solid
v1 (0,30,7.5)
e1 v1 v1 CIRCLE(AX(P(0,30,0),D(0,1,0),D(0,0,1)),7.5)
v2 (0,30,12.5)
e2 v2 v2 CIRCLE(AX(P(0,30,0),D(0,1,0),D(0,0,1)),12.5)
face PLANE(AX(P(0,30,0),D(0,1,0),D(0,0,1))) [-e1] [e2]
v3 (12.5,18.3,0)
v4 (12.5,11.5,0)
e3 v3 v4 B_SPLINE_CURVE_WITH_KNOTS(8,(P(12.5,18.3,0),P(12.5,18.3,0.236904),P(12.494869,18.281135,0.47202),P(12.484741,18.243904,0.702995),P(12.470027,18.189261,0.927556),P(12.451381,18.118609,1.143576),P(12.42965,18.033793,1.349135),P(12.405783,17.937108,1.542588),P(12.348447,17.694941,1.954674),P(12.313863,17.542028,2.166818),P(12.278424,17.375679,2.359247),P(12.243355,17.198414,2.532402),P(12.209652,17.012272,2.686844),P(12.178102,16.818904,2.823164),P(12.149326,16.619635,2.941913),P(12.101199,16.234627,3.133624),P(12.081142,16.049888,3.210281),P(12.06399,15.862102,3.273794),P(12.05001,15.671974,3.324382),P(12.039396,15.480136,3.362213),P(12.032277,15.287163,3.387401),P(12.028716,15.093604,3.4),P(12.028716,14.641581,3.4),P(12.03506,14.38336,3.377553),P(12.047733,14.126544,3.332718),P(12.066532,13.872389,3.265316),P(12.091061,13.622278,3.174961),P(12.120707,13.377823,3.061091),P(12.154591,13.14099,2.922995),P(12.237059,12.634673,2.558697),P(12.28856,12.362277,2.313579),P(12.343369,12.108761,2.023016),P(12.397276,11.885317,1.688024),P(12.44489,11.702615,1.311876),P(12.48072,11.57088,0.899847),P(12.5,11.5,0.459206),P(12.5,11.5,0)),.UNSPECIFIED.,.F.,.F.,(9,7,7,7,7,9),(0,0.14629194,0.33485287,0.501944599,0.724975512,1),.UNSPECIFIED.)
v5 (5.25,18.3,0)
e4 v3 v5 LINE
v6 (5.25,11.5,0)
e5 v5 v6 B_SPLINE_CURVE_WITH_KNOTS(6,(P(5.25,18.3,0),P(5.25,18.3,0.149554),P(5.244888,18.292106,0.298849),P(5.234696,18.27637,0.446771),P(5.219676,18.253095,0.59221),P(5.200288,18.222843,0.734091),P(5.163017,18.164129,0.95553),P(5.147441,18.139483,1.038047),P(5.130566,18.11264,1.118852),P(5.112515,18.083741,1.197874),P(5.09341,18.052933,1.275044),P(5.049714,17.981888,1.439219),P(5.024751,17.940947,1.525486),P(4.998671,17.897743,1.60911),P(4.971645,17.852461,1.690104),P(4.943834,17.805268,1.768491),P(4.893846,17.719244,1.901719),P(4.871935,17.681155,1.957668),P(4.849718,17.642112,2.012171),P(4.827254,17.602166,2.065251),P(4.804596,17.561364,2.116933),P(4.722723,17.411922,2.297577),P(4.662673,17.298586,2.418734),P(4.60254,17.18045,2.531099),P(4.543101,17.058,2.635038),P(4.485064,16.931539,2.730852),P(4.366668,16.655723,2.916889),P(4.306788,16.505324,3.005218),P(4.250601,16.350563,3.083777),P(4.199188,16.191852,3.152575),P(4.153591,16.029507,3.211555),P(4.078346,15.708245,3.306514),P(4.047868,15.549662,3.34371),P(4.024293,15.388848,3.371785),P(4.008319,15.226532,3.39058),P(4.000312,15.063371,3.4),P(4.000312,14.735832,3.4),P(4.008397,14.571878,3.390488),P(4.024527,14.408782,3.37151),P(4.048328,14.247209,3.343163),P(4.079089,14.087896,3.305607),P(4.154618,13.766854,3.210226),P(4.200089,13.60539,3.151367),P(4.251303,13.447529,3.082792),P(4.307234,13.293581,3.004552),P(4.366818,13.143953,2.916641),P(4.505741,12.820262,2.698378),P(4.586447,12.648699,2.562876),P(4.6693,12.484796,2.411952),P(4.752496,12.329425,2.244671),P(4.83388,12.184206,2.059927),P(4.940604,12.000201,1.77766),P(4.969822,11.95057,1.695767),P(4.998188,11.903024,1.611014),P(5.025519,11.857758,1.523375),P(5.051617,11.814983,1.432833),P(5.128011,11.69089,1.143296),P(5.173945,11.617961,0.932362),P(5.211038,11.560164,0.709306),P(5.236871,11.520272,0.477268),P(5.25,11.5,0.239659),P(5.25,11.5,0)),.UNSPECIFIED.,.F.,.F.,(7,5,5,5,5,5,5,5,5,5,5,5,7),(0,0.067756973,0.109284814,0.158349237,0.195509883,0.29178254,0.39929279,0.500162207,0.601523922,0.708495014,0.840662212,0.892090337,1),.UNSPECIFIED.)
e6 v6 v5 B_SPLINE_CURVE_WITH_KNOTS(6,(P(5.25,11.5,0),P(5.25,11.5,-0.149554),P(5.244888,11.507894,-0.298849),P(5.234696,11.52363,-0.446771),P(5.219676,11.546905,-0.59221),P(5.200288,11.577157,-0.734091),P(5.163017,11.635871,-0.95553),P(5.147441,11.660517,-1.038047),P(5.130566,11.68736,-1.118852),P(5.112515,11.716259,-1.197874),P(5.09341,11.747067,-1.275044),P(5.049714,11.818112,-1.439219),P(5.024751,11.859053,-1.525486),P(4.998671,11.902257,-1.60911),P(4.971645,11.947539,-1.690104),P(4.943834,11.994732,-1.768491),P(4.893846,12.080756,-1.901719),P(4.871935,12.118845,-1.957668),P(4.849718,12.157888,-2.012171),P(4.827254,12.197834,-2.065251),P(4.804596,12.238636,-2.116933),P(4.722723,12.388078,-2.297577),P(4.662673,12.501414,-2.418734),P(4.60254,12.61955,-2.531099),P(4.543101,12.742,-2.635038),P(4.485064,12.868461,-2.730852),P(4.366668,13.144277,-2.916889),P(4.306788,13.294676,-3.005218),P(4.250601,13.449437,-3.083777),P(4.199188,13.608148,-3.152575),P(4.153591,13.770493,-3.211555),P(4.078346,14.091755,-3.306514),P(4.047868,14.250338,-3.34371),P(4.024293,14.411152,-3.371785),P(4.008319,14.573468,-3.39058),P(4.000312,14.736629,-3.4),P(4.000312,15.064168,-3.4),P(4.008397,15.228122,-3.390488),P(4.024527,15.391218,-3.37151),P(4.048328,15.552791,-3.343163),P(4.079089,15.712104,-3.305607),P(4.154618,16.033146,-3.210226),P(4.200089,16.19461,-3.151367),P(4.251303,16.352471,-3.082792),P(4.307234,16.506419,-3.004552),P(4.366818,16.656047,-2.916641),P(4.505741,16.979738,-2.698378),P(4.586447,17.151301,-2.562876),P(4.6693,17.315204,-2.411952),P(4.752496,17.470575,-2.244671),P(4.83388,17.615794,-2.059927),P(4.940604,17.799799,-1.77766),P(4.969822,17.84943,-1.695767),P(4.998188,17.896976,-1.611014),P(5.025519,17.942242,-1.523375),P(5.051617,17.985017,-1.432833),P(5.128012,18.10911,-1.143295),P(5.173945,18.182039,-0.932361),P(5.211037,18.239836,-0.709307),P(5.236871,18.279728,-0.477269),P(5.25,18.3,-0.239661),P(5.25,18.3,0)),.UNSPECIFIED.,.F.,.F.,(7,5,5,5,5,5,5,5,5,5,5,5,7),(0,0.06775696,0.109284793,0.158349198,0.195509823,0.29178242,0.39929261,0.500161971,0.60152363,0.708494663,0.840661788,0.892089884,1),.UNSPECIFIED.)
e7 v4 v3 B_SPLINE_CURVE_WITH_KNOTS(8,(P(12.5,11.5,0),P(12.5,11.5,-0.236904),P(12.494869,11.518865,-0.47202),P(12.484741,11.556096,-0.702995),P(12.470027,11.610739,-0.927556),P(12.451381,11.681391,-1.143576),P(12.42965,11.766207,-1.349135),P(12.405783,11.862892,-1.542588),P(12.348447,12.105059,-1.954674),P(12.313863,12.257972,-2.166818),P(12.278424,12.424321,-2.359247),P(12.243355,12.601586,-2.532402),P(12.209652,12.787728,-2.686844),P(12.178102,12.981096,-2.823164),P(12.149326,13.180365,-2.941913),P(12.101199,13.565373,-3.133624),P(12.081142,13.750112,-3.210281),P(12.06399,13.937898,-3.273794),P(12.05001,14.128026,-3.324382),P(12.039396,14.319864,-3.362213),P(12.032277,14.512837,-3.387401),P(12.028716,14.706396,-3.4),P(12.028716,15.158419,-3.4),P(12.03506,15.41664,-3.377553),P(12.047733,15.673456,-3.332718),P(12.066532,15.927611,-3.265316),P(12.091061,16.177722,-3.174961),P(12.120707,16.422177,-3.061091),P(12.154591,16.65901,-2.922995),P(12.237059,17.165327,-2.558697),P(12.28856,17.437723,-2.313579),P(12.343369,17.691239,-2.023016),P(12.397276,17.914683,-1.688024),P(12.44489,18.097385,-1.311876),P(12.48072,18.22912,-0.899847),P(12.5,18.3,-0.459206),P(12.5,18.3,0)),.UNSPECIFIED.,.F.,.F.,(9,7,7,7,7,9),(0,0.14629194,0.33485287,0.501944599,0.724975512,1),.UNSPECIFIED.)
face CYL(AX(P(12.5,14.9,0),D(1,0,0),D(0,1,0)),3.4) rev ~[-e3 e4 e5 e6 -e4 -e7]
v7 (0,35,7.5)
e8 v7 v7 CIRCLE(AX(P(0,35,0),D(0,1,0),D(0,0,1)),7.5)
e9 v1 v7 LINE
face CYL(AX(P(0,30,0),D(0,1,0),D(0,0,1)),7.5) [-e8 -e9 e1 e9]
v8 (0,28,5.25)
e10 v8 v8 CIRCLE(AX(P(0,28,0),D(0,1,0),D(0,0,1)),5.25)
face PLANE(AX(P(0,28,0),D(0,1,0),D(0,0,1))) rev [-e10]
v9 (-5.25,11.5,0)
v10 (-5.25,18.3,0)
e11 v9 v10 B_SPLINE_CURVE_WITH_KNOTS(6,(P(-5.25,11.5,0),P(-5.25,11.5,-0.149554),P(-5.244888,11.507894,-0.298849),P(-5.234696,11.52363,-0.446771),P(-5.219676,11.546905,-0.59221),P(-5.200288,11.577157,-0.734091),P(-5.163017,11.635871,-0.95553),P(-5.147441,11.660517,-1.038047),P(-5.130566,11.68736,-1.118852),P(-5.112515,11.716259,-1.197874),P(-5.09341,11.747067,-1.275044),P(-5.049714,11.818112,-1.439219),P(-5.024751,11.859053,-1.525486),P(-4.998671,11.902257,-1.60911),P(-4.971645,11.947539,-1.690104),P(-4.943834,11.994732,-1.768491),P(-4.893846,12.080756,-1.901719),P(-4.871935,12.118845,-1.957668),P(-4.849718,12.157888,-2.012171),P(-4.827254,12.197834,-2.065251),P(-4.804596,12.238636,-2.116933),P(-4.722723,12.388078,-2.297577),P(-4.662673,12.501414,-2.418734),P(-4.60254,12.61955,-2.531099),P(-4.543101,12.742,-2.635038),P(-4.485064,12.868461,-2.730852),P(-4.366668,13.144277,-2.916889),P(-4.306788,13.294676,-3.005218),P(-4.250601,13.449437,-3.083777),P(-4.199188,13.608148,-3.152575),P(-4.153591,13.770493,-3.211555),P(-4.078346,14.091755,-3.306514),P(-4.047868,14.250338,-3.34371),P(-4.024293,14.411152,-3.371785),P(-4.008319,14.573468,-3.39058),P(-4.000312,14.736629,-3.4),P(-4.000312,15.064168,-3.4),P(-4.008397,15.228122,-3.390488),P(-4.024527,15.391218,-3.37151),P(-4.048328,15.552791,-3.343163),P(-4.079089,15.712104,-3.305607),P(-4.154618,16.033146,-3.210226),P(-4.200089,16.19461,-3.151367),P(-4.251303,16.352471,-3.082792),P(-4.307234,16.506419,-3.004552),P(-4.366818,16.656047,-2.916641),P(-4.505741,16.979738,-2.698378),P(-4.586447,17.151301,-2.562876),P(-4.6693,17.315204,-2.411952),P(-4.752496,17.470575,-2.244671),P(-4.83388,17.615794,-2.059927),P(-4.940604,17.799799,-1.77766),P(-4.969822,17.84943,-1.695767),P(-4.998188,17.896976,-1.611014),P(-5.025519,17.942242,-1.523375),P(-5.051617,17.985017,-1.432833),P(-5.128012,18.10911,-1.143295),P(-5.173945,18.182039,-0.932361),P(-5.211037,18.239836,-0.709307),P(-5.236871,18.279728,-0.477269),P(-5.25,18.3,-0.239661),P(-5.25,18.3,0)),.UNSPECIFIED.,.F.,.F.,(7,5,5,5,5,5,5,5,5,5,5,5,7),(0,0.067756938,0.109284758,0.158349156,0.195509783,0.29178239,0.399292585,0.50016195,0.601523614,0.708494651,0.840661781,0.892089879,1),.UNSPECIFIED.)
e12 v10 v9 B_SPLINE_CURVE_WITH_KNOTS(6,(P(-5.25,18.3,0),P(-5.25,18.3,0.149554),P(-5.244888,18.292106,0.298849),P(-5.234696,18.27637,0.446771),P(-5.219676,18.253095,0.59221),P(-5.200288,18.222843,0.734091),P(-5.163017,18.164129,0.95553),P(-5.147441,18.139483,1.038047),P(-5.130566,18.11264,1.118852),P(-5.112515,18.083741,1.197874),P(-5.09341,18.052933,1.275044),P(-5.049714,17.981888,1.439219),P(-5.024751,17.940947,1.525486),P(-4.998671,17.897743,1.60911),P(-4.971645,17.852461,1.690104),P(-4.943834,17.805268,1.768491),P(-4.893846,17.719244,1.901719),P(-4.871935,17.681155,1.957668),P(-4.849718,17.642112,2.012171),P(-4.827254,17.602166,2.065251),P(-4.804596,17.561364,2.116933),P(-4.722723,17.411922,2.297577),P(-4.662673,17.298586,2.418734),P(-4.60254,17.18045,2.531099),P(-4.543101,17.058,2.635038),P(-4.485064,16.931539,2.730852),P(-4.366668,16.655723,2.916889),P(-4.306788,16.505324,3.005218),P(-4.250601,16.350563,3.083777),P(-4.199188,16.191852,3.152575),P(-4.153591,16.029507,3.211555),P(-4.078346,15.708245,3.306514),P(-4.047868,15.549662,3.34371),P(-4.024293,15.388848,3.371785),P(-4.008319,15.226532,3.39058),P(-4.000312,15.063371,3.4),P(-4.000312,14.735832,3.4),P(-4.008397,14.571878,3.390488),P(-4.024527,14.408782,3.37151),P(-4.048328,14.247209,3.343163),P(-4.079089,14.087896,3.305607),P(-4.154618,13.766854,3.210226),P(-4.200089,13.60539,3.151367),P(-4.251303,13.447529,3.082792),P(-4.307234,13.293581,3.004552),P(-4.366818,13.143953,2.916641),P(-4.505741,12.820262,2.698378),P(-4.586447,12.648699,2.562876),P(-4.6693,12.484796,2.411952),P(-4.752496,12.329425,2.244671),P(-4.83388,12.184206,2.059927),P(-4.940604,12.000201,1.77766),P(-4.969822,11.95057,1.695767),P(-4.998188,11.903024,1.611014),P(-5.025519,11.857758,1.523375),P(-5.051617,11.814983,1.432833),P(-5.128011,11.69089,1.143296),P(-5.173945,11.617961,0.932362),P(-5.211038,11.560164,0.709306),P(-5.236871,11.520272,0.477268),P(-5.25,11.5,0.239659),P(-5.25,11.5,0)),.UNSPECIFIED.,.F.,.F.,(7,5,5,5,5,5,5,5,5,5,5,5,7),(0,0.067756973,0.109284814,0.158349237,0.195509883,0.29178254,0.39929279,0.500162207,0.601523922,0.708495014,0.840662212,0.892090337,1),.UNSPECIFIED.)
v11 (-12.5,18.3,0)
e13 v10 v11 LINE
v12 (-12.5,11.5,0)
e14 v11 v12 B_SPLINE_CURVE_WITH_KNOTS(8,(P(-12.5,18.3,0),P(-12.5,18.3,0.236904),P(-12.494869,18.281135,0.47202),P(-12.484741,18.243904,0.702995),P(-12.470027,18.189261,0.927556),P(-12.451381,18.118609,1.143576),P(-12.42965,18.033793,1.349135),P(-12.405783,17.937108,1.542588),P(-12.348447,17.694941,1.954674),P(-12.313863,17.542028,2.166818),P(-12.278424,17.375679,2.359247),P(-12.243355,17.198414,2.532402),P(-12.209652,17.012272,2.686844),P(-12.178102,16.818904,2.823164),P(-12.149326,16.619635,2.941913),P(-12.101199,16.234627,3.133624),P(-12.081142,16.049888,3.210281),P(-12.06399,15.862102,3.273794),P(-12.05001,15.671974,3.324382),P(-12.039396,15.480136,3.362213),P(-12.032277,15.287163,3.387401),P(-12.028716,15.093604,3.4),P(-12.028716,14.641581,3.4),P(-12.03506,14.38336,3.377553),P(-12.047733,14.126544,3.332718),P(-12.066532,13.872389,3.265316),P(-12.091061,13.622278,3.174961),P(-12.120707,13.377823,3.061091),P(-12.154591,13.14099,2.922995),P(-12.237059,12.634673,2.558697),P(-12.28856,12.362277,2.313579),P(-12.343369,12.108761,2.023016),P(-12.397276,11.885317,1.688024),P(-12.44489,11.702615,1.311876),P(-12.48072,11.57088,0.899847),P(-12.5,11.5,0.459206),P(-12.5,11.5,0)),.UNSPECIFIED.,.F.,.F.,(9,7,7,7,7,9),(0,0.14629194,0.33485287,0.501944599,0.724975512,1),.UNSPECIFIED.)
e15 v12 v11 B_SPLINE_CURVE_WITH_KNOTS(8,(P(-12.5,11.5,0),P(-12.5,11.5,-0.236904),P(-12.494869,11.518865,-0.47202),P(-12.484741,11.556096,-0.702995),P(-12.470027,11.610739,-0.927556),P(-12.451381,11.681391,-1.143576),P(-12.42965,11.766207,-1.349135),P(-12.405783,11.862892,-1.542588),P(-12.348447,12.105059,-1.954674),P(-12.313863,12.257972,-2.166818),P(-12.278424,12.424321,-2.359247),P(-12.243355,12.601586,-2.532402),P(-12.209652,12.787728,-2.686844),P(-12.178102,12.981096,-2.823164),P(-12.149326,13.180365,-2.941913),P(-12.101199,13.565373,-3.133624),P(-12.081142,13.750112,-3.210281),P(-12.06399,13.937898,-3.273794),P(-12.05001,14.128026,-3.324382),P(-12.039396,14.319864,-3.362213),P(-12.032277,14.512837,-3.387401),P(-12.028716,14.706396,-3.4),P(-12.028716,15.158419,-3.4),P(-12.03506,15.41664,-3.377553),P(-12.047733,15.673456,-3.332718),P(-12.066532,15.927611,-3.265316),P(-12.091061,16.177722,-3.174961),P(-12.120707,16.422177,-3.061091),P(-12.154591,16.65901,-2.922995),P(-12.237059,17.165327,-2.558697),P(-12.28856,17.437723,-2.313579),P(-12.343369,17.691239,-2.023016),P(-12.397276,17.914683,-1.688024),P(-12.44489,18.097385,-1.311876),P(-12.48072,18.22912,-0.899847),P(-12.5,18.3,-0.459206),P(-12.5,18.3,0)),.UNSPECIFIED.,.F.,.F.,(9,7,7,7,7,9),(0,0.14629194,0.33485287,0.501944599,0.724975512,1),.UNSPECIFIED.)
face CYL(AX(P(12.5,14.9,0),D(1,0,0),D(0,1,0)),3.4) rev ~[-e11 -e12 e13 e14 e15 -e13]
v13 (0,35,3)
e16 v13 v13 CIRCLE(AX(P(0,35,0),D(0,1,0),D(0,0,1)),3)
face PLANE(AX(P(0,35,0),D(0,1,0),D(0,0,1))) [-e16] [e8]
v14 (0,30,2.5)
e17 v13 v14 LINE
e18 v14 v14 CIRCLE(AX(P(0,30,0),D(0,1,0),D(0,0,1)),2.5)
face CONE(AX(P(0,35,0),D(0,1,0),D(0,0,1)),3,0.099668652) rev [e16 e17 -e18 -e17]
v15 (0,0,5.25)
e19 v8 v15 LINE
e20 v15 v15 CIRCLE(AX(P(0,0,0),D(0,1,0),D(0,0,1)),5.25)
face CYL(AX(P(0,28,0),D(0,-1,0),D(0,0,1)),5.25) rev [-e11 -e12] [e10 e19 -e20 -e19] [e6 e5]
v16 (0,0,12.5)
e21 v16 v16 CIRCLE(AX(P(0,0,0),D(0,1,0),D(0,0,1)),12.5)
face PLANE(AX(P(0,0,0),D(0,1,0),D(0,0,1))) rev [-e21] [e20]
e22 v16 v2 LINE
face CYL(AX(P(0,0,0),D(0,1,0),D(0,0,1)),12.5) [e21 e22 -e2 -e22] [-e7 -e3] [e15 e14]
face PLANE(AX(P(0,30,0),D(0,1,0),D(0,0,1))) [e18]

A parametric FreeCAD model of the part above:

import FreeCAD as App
import Part
import Sketcher
Q = App.Units.Quantity


def add_polygon(sketch, points):
    """Adds a closed chain of lines whose ends are joined by coincident constraints."""
    first, n = sketch.GeometryCount, len(points)
    for a, b in zip(points, points[1:] + points[:1]):
        sketch.addGeometry(Part.LineSegment(App.Vector(*a, 0), App.Vector(*b, 0)), False)
    for i in range(n):
        sketch.addConstraint(Sketcher.Constraint("Coincident", first + i, 2, first + (i + 1) % n, 1))

doc = App.newDocument("Part")
body = doc.addObject("PartDesign::Body", "Body")

# Sketch on YZ plane
sketch1 = doc.addObject("Sketcher::SketchObject", "Sketch")
body.addObject(sketch1)
sketch1.AttachmentSupport = (doc.YZ_Plane, [""])
sketch1.MapMode = "FlatFace"
add_polygon(sketch1, [(28, 5.2), (28, 0), (30, 0), (30, 2.5), (35, 3), (35, 7.5), (30, 7.5), (30, 12.5), (0, 12.5), (0, 5.2)])  # lines 0-9
sketch1.addConstraint(Sketcher.Constraint("Vertical", 0))
sketch1.addConstraint(Sketcher.Constraint("Horizontal", 1))
sketch1.addConstraint(Sketcher.Constraint("Vertical", 2))
sketch1.addConstraint(Sketcher.Constraint("Vertical", 4))
sketch1.addConstraint(Sketcher.Constraint("Horizontal", 5))
sketch1.addConstraint(Sketcher.Constraint("Vertical", 6))
sketch1.addConstraint(Sketcher.Constraint("Horizontal", 7))
sketch1.addConstraint(Sketcher.Constraint("Vertical", 8))
sketch1.addConstraint(Sketcher.Constraint("Horizontal", 9))
sketch1.addConstraint(Sketcher.Constraint("PointOnObject", 0, 2, -1))
sketch1.addConstraint(Sketcher.Constraint("PointOnObject", 7, 2, -2))
sketch1.addConstraint(Sketcher.Constraint("Vertical", 2, 2, 5, 2))
sketch1.addConstraint(Sketcher.Constraint("Equal", 5, 6))
sketch1.addConstraint(Sketcher.Constraint("DistanceX", 5, 2, 5, 1, Q("5 mm")))
sketch1.addConstraint(Sketcher.Constraint("DistanceX", 7, 2, 7, 1, Q("30 mm")))
sketch1.addConstraint(Sketcher.Constraint("DistanceX", 9, 1, 9, 2, Q("28 mm")))
sketch1.addConstraint(Sketcher.Constraint("DistanceY", 2, 2, 4, 2, Q("5 mm")))
sketch1.addConstraint(Sketcher.Constraint("DistanceY", 2, 1, 2, 2, Q("2.5 mm")))
sketch1.addConstraint(Sketcher.Constraint("DistanceY", 4, 1, 4, 2, Q("4.5 mm")))
sketch1.addConstraint(Sketcher.Constraint("DistanceY", 0, 2, 0, 1, Q("5.25 mm")))
revolution = doc.addObject("PartDesign::Revolution", "Revolution")
body.addObject(revolution)
revolution.Profile = sketch1
revolution.ReferenceAxis = (sketch1, ["H_Axis"])
revolution.Angle = 360

# Sketch on YZ plane
sketch2 = doc.addObject("Sketcher::SketchObject", "Sketch001")
body.addObject(sketch2)
sketch2.AttachmentSupport = (doc.YZ_Plane, [""])
sketch2.MapMode = "FlatFace"
sketch2.AttachmentOffset = App.Placement(App.Vector(0, 0, 12.5), App.Rotation())
sketch2.addGeometry(Part.Circle(App.Vector(14.9, 0, 0), App.Vector(0, 0, 1), 3.4), False)
sketch2.addConstraint(Sketcher.Constraint("PointOnObject", 0, 3, -1))
sketch2.addConstraint(Sketcher.Constraint("Diameter", 0, Q("6.8 mm")))
sketch2.addConstraint(Sketcher.Constraint("DistanceX", -1, 1, 0, 3, Q("14.9 mm")))
pocket1 = doc.addObject("PartDesign::Pocket", "Pocket")
body.addObject(pocket1)
pocket1.Profile = sketch2
pocket1.Type = "ThroughAll"

doc.recompute()
